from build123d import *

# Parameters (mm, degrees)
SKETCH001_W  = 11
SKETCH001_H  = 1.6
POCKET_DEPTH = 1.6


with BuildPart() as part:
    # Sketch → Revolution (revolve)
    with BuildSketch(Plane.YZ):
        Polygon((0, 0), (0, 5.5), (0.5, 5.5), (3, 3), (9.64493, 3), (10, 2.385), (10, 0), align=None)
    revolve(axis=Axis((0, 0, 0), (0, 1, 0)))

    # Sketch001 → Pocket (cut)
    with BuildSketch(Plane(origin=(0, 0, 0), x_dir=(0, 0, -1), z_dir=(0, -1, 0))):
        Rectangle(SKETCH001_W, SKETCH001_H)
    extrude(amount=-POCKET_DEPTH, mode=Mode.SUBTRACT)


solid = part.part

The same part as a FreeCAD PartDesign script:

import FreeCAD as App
import Part
import Sketcher
Q = App.Units.Quantity

doc = App.newDocument("Part")
body = doc.addObject("PartDesign::Body", "Body")

sketch1 = body.newObject("Sketcher::SketchObject", "Sketch")
sketch1.AttachmentSupport = (doc.getObject("YZ_Plane"), [""])
sketch1.MapMode = "FlatFace"
sketch1.addGeometry([
    Part.LineSegment(App.Vector(0, 5.5, 0), App.Vector(0, 0, 0)),
    Part.LineSegment(App.Vector(0, 0, 0), App.Vector(10, 0, 0)),
    Part.LineSegment(App.Vector(10, 0, 0), App.Vector(10, 2.385, 0)),
    Part.LineSegment(App.Vector(10, 2.385, 0), App.Vector(9.64493, 3, 0)),
    Part.LineSegment(App.Vector(9.64493, 3, 0), App.Vector(3, 3, 0)),
    Part.LineSegment(App.Vector(3, 3, 0), App.Vector(0.5, 5.5, 0)),
    Part.LineSegment(App.Vector(0.5, 5.5, 0), App.Vector(0, 5.5, 0)),
], False)
sketch1.addConstraint([
    Sketcher.Constraint("Coincident", 0, 2, 1, 1),
    Sketcher.Constraint("Coincident", 1, 2, 2, 1),
    Sketcher.Constraint("Coincident", 2, 2, 3, 1),
    Sketcher.Constraint("Coincident", 3, 2, 4, 1),
    Sketcher.Constraint("Coincident", 4, 2, 5, 1),
    Sketcher.Constraint("Coincident", 5, 2, 6, 1),
    Sketcher.Constraint("Coincident", 6, 2, 0, 1),
    Sketcher.Constraint("Vertical", 0),
    Sketcher.Constraint("Horizontal", 1),
    Sketcher.Constraint("Vertical", 2),
    Sketcher.Constraint("Horizontal", 4),
    Sketcher.Constraint("Horizontal", 6),
    Sketcher.Constraint("Coincident", 0, 2, -1, 1),
    Sketcher.Constraint("DistanceX", 1, 1, 1, 2, Q("10 mm")),
    Sketcher.Constraint("Angle", 5, Q("135 deg")),
    Sketcher.Constraint("DistanceX", 6, 2, 6, 1, Q("0.5 mm")),
    Sketcher.Constraint("DistanceY", 0, 2, 0, 1, Q("5.5 mm")),
    Sketcher.Constraint("DistanceY", -1, 1, 3, 2, Q("3 mm")),
    Sketcher.Constraint("DistanceY", 2, 1, 2, 2, Q("2.385 mm")),
    Sketcher.Constraint("DistanceX", 4, 2, 4, 1, Q("6.64493 mm")),
])
revolution = body.newObject("PartDesign::Revolution", "Revolution")
revolution.Profile = sketch1
revolution.ReferenceAxis = (sketch1, ["H_Axis"])
revolution.Angle = 360

sketch2 = body.newObject("Sketcher::SketchObject", "Sketch001")
sketch2.AttachmentSupport = (doc.getObject("XZ_Plane"), [""])
sketch2.MapMode = "FlatFace"
sketch2.addGeometry([
    Part.LineSegment(App.Vector(0.8, 5.5, 0), App.Vector(-0.8, 5.5, 0)),
    Part.LineSegment(App.Vector(-0.8, 5.5, 0), App.Vector(-0.8, -5.5, 0)),
    Part.LineSegment(App.Vector(-0.8, -5.5, 0), App.Vector(0.8, -5.5, 0)),
    Part.LineSegment(App.Vector(0.8, -5.5, 0), App.Vector(0.8, 5.5, 0)),
], False)
sketch2.addConstraint([
    Sketcher.Constraint("Coincident", 0, 2, 1, 1),
    Sketcher.Constraint("Coincident", 1, 2, 2, 1),
    Sketcher.Constraint("Coincident", 2, 2, 3, 1),
    Sketcher.Constraint("Coincident", 3, 2, 0, 1),
    Sketcher.Constraint("Horizontal", 0),
    Sketcher.Constraint("Vertical", 1),
    Sketcher.Constraint("Horizontal", 2),
    Sketcher.Constraint("Vertical", 3),
    Sketcher.Constraint("Symmetric", 0, 2, 2, 2, -1, 1),
    Sketcher.Constraint("DistanceY", 1, 2, 1, 1, Q("11 mm")),
    Sketcher.Constraint("DistanceX", 0, 2, 0, 1, Q("1.6 mm")),
])
pocket1 = body.newObject("PartDesign::Pocket", "Pocket")
pocket1.Profile = sketch2
pocket1.Length = 1.6

doc.recompute()
